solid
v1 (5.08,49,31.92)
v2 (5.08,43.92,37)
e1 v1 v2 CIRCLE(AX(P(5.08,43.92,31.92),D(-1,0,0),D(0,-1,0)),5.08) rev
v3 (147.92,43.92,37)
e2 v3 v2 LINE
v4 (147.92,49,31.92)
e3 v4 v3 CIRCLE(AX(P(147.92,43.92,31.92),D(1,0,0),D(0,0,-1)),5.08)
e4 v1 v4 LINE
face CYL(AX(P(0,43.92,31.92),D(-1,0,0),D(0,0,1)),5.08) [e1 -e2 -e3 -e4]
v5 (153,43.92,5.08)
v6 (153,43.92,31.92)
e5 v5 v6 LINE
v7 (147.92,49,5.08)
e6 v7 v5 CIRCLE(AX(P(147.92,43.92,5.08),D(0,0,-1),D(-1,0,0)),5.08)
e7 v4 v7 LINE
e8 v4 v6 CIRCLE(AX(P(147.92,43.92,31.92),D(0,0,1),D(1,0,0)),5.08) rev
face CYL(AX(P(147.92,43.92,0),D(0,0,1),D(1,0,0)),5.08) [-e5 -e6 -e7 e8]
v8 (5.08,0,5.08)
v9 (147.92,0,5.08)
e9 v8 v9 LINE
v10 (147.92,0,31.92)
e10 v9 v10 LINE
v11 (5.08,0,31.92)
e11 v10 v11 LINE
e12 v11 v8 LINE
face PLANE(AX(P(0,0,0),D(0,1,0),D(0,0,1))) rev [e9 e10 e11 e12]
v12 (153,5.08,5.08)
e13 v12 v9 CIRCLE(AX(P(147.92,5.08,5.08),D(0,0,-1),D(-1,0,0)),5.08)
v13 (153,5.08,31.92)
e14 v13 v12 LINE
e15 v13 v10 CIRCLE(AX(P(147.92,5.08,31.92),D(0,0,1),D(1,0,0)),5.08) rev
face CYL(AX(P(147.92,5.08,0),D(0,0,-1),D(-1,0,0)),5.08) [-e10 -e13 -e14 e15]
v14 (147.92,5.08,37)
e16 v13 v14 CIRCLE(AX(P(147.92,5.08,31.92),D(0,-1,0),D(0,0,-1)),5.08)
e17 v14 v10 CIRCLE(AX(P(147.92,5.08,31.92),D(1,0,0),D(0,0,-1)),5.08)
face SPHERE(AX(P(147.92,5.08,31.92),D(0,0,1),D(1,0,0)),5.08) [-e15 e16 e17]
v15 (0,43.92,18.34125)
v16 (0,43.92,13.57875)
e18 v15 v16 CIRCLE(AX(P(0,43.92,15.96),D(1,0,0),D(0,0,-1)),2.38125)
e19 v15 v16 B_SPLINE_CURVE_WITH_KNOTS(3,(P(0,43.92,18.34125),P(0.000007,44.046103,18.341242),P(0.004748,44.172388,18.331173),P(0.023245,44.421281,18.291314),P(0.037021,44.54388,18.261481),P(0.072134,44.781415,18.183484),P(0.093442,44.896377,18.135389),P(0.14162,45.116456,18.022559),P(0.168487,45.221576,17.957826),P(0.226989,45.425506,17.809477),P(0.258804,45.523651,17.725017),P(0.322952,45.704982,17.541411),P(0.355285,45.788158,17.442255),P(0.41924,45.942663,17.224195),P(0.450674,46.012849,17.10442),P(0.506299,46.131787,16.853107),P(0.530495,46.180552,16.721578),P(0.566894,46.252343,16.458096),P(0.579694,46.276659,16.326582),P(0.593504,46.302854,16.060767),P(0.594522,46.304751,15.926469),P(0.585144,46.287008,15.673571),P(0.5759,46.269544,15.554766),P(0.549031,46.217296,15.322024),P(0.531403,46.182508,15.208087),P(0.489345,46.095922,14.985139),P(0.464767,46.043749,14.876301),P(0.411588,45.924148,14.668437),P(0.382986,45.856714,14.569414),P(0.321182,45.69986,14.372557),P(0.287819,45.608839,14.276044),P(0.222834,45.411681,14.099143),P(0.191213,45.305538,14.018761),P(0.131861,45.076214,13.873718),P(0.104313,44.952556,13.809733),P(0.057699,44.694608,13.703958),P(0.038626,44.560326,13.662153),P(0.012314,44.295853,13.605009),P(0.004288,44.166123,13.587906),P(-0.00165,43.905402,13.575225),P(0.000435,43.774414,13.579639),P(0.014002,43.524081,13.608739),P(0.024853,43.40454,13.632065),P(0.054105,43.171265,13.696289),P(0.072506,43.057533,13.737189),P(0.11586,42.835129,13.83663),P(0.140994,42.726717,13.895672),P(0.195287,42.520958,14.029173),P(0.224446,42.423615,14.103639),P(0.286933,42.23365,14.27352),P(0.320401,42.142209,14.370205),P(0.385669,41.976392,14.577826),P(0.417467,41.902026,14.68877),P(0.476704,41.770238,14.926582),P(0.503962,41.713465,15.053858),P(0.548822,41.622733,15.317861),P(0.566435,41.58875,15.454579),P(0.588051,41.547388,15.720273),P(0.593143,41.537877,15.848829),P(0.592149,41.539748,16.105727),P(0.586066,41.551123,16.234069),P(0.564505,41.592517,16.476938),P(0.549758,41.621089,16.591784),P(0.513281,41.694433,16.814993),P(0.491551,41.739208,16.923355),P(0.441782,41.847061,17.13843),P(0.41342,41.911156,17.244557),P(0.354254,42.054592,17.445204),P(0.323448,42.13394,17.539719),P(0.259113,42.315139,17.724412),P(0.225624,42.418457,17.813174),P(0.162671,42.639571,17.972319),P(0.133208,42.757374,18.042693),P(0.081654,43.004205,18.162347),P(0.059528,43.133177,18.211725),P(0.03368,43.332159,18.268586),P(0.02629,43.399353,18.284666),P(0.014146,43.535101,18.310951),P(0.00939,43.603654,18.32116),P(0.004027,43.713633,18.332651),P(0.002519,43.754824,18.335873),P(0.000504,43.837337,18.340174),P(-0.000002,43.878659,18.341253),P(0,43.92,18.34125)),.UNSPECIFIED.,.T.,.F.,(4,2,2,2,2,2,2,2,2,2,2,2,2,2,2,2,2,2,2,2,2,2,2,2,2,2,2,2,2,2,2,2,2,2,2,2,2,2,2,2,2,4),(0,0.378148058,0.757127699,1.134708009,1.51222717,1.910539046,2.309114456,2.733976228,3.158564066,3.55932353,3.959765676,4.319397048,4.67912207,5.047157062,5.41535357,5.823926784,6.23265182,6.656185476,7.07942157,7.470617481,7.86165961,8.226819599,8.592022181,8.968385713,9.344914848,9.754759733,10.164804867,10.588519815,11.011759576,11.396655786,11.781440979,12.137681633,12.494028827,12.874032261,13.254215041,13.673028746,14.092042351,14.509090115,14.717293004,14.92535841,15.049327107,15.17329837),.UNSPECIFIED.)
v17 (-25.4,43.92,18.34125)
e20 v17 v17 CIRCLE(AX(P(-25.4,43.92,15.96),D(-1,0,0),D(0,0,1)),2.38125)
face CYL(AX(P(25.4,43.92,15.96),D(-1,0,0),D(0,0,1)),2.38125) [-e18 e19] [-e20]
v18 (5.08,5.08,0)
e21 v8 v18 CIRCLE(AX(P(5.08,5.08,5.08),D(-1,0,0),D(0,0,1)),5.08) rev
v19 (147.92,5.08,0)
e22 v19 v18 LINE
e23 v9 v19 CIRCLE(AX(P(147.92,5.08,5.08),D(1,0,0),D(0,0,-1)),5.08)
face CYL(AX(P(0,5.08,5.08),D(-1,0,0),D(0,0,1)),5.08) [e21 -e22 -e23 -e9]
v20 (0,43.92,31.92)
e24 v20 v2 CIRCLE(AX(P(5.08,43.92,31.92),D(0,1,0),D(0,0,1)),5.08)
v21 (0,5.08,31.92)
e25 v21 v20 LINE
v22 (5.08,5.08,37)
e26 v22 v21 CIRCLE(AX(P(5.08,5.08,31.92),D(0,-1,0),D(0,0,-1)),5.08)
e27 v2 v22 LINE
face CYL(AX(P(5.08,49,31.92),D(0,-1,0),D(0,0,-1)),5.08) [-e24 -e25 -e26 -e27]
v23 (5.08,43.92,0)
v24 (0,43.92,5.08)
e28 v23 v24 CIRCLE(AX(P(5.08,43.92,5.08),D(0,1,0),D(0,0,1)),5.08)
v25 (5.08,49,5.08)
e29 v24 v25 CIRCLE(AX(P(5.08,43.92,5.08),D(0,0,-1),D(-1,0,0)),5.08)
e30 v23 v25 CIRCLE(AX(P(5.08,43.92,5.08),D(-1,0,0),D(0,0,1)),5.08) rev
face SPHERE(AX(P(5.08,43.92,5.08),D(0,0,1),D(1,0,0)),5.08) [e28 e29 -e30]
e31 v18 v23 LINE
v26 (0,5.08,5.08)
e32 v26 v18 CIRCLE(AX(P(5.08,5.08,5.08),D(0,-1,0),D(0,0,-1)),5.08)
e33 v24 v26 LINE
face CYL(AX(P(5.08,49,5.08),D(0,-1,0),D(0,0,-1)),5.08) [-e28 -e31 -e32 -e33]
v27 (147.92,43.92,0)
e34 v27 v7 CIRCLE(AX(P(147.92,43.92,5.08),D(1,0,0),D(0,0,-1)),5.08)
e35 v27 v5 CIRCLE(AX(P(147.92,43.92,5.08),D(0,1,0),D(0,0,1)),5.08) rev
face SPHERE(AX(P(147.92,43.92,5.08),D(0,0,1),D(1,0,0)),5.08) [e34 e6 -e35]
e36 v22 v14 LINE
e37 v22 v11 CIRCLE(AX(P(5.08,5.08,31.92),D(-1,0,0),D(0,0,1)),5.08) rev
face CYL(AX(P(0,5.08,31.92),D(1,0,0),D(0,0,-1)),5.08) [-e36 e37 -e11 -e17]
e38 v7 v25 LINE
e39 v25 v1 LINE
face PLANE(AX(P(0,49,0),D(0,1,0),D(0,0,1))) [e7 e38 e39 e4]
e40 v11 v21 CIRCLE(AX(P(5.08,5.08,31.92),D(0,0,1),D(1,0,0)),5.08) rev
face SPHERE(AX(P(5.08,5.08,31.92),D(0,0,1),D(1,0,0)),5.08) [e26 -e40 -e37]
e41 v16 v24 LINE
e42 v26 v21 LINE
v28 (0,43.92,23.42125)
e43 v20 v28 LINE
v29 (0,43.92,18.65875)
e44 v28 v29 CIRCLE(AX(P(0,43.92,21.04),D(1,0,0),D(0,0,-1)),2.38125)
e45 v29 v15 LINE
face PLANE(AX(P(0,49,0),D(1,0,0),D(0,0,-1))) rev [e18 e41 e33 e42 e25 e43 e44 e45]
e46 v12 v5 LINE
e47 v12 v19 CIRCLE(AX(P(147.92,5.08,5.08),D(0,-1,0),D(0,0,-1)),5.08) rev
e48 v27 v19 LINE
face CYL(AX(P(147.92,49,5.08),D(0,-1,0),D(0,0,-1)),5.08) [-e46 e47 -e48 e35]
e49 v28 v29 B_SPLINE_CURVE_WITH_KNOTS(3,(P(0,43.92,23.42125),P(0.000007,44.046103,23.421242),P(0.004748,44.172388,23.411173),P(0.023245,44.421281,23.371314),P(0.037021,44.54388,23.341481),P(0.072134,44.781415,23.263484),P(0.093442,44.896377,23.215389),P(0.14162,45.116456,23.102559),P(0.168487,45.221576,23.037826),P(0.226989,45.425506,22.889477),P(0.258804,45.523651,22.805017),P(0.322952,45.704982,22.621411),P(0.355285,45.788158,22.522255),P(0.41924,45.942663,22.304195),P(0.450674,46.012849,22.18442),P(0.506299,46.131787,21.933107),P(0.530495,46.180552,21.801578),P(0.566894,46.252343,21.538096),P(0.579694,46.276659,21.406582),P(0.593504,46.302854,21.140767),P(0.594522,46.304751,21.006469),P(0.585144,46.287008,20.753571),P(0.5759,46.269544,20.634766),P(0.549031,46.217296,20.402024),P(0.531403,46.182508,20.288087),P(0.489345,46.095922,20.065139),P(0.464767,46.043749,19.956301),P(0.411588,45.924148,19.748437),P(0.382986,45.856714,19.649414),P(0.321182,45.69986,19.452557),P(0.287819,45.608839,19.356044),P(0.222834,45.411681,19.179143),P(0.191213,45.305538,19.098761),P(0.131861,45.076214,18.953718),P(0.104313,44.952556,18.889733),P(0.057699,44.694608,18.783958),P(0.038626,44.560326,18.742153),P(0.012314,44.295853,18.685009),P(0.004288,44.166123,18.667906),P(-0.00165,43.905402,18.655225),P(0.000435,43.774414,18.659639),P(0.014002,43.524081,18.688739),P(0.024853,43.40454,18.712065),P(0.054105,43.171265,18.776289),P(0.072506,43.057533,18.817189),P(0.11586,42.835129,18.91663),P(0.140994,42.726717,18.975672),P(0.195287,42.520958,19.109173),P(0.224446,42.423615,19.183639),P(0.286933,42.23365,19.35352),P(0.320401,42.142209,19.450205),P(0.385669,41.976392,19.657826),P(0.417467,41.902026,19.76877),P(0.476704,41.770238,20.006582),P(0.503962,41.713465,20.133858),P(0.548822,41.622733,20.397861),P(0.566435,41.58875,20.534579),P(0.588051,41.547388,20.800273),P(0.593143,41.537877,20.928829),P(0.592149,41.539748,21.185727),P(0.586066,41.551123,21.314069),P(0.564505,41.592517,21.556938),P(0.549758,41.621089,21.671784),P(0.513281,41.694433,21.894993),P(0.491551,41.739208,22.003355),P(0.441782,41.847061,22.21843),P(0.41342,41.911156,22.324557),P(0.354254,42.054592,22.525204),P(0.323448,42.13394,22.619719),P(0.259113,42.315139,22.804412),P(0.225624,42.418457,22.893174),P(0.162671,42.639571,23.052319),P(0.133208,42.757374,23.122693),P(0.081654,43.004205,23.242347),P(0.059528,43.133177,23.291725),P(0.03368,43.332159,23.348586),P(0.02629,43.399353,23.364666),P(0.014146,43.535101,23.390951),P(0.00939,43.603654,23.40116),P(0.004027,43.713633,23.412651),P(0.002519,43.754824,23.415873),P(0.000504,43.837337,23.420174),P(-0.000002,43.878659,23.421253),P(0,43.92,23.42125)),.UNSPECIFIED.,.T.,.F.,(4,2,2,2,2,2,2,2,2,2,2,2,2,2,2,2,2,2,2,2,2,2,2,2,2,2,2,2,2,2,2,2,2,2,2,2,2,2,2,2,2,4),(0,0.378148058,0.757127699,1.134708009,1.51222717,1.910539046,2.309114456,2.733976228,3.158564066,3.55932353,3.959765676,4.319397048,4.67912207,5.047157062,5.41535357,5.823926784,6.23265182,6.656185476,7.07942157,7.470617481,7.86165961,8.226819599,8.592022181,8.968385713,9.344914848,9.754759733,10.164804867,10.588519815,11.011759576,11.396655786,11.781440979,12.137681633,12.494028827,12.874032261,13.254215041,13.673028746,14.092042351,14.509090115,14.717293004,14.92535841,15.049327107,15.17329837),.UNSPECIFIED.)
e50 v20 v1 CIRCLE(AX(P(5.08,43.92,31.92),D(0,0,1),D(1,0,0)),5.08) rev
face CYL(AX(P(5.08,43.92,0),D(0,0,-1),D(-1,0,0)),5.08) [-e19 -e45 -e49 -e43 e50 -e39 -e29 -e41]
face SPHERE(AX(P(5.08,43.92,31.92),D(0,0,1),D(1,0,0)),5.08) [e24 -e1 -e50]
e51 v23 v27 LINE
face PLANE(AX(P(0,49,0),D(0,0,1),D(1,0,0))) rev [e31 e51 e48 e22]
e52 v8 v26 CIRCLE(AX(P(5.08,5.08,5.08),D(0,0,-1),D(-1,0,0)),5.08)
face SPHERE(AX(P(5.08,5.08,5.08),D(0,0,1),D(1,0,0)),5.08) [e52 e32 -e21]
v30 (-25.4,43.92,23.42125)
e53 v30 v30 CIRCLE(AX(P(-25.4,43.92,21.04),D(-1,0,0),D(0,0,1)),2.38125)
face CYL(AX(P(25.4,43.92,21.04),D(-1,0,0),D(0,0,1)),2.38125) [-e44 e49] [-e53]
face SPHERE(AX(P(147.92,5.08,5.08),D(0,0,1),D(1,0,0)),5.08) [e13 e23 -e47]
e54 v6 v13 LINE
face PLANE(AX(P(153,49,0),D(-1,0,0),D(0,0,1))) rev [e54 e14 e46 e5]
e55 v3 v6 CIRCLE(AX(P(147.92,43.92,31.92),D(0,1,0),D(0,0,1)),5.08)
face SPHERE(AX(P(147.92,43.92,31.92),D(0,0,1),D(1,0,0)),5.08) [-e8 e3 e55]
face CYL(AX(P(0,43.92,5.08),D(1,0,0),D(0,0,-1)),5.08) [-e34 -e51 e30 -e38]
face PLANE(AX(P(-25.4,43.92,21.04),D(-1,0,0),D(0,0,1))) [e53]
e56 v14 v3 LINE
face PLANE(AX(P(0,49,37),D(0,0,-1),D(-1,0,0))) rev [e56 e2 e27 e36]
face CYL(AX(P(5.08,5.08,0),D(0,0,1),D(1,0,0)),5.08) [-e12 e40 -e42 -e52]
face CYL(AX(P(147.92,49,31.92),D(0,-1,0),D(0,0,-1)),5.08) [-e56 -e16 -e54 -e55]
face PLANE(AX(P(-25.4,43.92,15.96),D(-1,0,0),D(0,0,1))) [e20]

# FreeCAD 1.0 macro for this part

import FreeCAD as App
import Part
import Sketcher

V = App.Vector
Q = App.Units.Quantity

doc = App.newDocument("Part")
params = doc.addObject("Spreadsheet::Sheet", "Params")
for row, (alias, value) in enumerate([
    ("sketch1_width", "153 mm"),
    ("sketch1_height", "37 mm"),
    ("pad1_length", "49 mm"),
    ("fillet_radius", "5.08 mm"),
    ("pad2_length", "25.4 mm"),
    ("pad2_length2", "25.4 mm"),
], start=1):
    params.set(f"A{row}", alias)
    params.set(f"B{row}", "=" + value)
    params.setAlias(f"B{row}", alias)

body = doc.addObject("PartDesign::Body", "Body")

# Sketch on XZ plane
sketch1 = doc.addObject("Sketcher::SketchObject", "Sketch")
body.addObject(sketch1)
sketch1.AttachmentSupport = (doc.XZ_Plane, [""])
sketch1.MapMode = "FlatFace"
sketch1.addGeometry(Part.LineSegment(V(0, 0, 0), V(0, 37, 0)), False)
sketch1.addGeometry(Part.LineSegment(V(0, 37, 0), V(153, 37, 0)), False)
sketch1.addGeometry(Part.LineSegment(V(153, 37, 0), V(153, 0, 0)), False)
sketch1.addGeometry(Part.LineSegment(V(153, 0, 0), V(0, 0, 0)), False)
sketch1.addConstraint(Sketcher.Constraint("Coincident", 0, 2, 1, 1))
sketch1.addConstraint(Sketcher.Constraint("Coincident", 1, 2, 2, 1))
sketch1.addConstraint(Sketcher.Constraint("Coincident", 2, 2, 3, 1))
sketch1.addConstraint(Sketcher.Constraint("Coincident", 3, 2, 0, 1))
sketch1.addConstraint(Sketcher.Constraint("Vertical", 0))
sketch1.addConstraint(Sketcher.Constraint("Horizontal", 1))
sketch1.addConstraint(Sketcher.Constraint("Vertical", 2))
sketch1.addConstraint(Sketcher.Constraint("Horizontal", 3))
sketch1.addConstraint(Sketcher.Constraint("Coincident", 3, 2, -1, 1))
sketch1.addConstraint(Sketcher.Constraint("DistanceX", 1, 1, 1, 2, Q("153 mm")))
sketch1.addConstraint(Sketcher.Constraint("DistanceY", 0, 1, 0, 2, Q("37 mm")))
sketch1.setExpression("Constraints[9]", "Params.sketch1_width")
sketch1.setExpression("Constraints[10]", "Params.sketch1_height")
pad1 = doc.addObject("PartDesign::Pad", "Pad")
body.addObject(pad1)
pad1.Profile = sketch1
pad1.setExpression("Length", "Params.pad1_length")
pad1.Reversed = True
doc.recompute()

fillet = doc.addObject("PartDesign::Fillet", "Fillet")
body.addObject(fillet)
fillet.Base = (pad1, ["Edge1"])
fillet.UseAllEdges = True
fillet.setExpression("Radius", "Params.fillet_radius")

# Sketch on YZ plane
sketch2 = doc.addObject("Sketcher::SketchObject", "Sketch001")
body.addObject(sketch2)
sketch2.AttachmentSupport = (doc.YZ_Plane, [""])
sketch2.MapMode = "FlatFace"
sketch2.addGeometry(Part.Circle(V(43.9, 16, 0), V(0, 0, 1), 2.4), False)
sketch2.addGeometry(Part.Circle(V(43.9, 21, 0), V(0, 0, 1), 2.4), False)
sketch2.addConstraint(Sketcher.Constraint("Equal", 0, 1))
sketch2.addConstraint(Sketcher.Constraint("Vertical", 0, 3, 1, 3))
sketch2.addConstraint(Sketcher.Constraint("Diameter", 0, Q("4.7625 mm")))
sketch2.addConstraint(Sketcher.Constraint("DistanceX", -1, 1, 0, 3, Q("43.92 mm")))
sketch2.addConstraint(Sketcher.Constraint("DistanceY", -1, 1, 0, 3, Q("15.96 mm")))
sketch2.addConstraint(Sketcher.Constraint("DistanceY", -1, 1, 1, 3, Q("21.04 mm")))
pad2 = doc.addObject("PartDesign::Pad", "Pad001")
body.addObject(pad2)
pad2.Profile = sketch2
pad2.Type = "TwoLengths"
pad2.setExpression("Length", "Params.pad2_length")
pad2.setExpression("Length2", "Params.pad2_length2")
pad2.Reversed = True

doc.recompute()
